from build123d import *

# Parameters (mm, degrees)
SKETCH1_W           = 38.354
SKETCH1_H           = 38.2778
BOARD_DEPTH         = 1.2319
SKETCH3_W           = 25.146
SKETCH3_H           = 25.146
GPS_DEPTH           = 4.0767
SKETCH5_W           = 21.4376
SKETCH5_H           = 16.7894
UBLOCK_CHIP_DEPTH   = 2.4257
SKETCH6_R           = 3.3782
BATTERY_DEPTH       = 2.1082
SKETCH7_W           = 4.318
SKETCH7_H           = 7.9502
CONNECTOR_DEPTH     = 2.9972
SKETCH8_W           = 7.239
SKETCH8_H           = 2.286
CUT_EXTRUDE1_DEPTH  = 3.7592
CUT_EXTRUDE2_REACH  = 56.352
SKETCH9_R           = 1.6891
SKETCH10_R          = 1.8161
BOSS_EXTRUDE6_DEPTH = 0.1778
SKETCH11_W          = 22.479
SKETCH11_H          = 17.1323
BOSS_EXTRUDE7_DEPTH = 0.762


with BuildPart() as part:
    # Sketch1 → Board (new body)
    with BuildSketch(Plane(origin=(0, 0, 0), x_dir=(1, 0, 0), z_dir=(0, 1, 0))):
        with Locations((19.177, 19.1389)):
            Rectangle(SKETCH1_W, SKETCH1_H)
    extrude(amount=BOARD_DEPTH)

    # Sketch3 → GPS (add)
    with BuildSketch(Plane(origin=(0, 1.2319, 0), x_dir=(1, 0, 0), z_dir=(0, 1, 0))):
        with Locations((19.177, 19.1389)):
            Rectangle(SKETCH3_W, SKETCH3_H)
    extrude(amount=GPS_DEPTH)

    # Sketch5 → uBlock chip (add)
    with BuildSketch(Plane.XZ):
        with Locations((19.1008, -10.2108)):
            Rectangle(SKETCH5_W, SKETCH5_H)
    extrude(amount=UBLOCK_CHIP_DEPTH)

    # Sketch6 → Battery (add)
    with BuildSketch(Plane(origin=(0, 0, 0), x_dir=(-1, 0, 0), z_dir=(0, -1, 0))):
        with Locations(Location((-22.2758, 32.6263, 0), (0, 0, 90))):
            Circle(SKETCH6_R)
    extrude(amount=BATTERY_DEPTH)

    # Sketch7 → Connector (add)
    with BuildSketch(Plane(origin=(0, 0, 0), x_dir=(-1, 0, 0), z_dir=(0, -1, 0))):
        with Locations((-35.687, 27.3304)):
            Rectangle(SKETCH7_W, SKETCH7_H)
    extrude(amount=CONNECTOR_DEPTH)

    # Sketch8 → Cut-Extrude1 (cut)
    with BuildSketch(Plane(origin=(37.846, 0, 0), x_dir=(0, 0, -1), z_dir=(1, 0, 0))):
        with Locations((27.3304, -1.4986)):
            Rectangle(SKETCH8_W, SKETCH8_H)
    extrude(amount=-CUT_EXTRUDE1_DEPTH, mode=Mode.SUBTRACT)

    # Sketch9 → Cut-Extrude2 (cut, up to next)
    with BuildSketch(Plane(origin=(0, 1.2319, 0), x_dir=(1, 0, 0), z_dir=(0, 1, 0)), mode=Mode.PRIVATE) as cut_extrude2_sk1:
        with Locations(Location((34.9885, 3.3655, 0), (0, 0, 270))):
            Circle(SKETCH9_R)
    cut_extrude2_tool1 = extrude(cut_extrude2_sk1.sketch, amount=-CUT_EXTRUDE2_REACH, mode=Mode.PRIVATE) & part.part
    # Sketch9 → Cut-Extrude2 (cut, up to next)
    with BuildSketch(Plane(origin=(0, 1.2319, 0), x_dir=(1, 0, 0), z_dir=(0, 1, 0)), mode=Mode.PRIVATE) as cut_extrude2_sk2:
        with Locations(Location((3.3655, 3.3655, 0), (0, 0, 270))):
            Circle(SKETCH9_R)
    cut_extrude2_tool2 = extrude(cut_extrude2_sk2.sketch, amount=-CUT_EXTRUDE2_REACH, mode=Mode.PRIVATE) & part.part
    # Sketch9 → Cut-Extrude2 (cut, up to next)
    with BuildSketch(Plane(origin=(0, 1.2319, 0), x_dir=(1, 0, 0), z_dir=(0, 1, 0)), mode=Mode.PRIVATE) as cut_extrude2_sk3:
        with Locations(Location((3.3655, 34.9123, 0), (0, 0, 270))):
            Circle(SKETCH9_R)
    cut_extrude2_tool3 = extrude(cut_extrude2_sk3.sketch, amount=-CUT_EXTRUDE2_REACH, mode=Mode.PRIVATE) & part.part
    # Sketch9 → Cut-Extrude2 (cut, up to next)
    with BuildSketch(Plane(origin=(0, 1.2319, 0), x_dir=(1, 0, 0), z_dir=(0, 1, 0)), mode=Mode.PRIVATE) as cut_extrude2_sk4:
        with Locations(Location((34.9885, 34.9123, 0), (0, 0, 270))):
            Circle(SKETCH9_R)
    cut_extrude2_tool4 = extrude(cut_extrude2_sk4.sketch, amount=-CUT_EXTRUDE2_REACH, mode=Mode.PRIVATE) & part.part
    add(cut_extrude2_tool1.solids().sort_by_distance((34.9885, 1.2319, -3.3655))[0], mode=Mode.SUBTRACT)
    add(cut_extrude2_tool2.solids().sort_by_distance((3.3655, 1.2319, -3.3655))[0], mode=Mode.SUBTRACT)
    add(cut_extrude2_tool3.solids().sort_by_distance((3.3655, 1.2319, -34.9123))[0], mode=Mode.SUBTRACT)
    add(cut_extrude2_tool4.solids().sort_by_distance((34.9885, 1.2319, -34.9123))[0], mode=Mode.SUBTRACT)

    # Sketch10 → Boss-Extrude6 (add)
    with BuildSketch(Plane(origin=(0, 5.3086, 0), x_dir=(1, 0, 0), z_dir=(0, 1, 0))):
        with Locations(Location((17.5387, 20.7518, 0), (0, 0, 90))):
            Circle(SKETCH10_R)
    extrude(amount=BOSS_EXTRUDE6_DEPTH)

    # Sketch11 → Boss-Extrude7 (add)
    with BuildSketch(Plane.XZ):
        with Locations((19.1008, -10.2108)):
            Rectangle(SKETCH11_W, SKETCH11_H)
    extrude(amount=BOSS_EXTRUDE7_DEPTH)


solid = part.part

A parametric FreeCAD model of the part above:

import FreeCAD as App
import Part
import Sketcher
from FreeCAD import Vector
Q = App.Units.Quantity

doc = App.newDocument("Part")
body = doc.addObject("PartDesign::Body", "Body")

# Sketch on XZ plane
sketch1 = body.newObject("Sketcher::SketchObject", "Sketch")
sketch1.AttachmentSupport = (doc.getObject("XZ_Plane"), [""])
sketch1.MapMode = "FlatFace"
sketch1.addGeometry([
    Part.LineSegment(Vector(0, -38.2778, 0), Vector(0, 0, 0)),
    Part.LineSegment(Vector(0, 0, 0), Vector(38.354, 0, 0)),
    Part.LineSegment(Vector(38.354, 0, 0), Vector(38.354, -38.2778, 0)),
    Part.LineSegment(Vector(38.354, -38.2778, 0), Vector(0, -38.2778, 0)),
], False)
sketch1.addConstraint([
    Sketcher.Constraint("Coincident", 0, 2, 1, 1),
    Sketcher.Constraint("Coincident", 1, 2, 2, 1),
    Sketcher.Constraint("Coincident", 2, 2, 3, 1),
    Sketcher.Constraint("Coincident", 3, 2, 0, 1),
    Sketcher.Constraint("Vertical", 0),
    Sketcher.Constraint("Horizontal", 1),
    Sketcher.Constraint("Vertical", 2),
    Sketcher.Constraint("Horizontal", 3),
    Sketcher.Constraint("Coincident", 0, 2, -1, 1),
    Sketcher.Constraint("DistanceX", 1, 1, 1, 2, Q("1.51 in")),
    Sketcher.Constraint("DistanceY", 0, 1, 0, 2, Q("1.507 in")),
])
pad1 = body.newObject("PartDesign::Pad", "Pad")
pad1.Profile = sketch1
pad1.Length = Q("0.0485 in")
pad1.Reversed = True

# Sketch on XZ plane
sketch2 = body.newObject("Sketcher::SketchObject", "Sketch001")
sketch2.AttachmentSupport = (doc.getObject("XZ_Plane"), [""])
sketch2.MapMode = "FlatFace"
sketch2.AttachmentOffset = App.Placement(Vector(0, 0, -0.0485 * 25.4), App.Rotation())
sketch2.addGeometry([
    Part.LineSegment(Vector(6.604, -31.7119, 0), Vector(6.604, -6.5659, 0)),
    Part.LineSegment(Vector(6.604, -6.5659, 0), Vector(31.75, -6.5659, 0)),
    Part.LineSegment(Vector(31.75, -6.5659, 0), Vector(31.75, -31.7119, 0)),
    Part.LineSegment(Vector(31.75, -31.7119, 0), Vector(6.604, -31.7119, 0)),
], False)
sketch2.addConstraint([
    Sketcher.Constraint("Coincident", 0, 2, 1, 1),
    Sketcher.Constraint("Coincident", 1, 2, 2, 1),
    Sketcher.Constraint("Coincident", 2, 2, 3, 1),
    Sketcher.Constraint("Coincident", 3, 2, 0, 1),
    Sketcher.Constraint("Vertical", 0),
    Sketcher.Constraint("Horizontal", 1),
    Sketcher.Constraint("Vertical", 2),
    Sketcher.Constraint("Horizontal", 3),
    Sketcher.Constraint("Equal", 3, 0),
    Sketcher.Constraint("DistanceX", 1, 1, 1, 2, Q("0.99 in")),
    Sketcher.Constraint("DistanceX", -1, 1, 0, 2, Q("0.26 in")),
    Sketcher.Constraint("DistanceY", 0, 2, -1, 1, Q("0.2585 in")),
])
pad2 = body.newObject("PartDesign::Pad", "Pad001")
pad2.Profile = sketch2
pad2.Length = Q("0.1605 in")
pad2.Reversed = True

# Sketch on XZ plane
sketch3 = body.newObject("Sketcher::SketchObject", "Sketch002")
sketch3.AttachmentSupport = (doc.getObject("XZ_Plane"), [""])
sketch3.MapMode = "FlatFace"
sketch3.addGeometry([
    Part.LineSegment(Vector(8.382, -1.8161, 0), Vector(8.382, -18.6055, 0)),
    Part.LineSegment(Vector(8.382, -18.6055, 0), Vector(29.8196, -18.6055, 0)),
    Part.LineSegment(Vector(29.8196, -18.6055, 0), Vector(29.8196, -1.8161, 0)),
    Part.LineSegment(Vector(29.8196, -1.8161, 0), Vector(8.382, -1.8161, 0)),
], False)
sketch3.addConstraint([
    Sketcher.Constraint("Coincident", 0, 2, 1, 1),
    Sketcher.Constraint("Coincident", 1, 2, 2, 1),
    Sketcher.Constraint("Coincident", 2, 2, 3, 1),
    Sketcher.Constraint("Coincident", 3, 2, 0, 1),
    Sketcher.Constraint("Vertical", 0),
    Sketcher.Constraint("Horizontal", 1),
    Sketcher.Constraint("Vertical", 2),
    Sketcher.Constraint("Horizontal", 3),
    Sketcher.Constraint("DistanceX", 1, 1, 1, 2, Q("0.844 in")),
    Sketcher.Constraint("DistanceY", 0, 2, 0, 1, Q("0.661 in")),
    Sketcher.Constraint("DistanceX", -1, 1, 0, 2, Q("0.33 in")),
    Sketcher.Constraint("DistanceY", 0, 2, -1, 1, Q("0.7325 in")),
])
pad3 = body.newObject("PartDesign::Pad", "Pad002")
pad3.Profile = sketch3
pad3.Length = Q("0.0955 in")

# Sketch on XZ plane
sketch4 = body.newObject("Sketcher::SketchObject", "Sketch003")
sketch4.AttachmentSupport = (doc.getObject("XZ_Plane"), [""])
sketch4.MapMode = "FlatFace"
sketch4.addGeometry(Part.Circle(Vector(22.2758, -32.6263, 0), Vector(0, 0, 1), 3.3782), False)
sketch4.addConstraint([
    Sketcher.Constraint("Diameter", 0, Q("0.266 in")),
    Sketcher.Constraint("DistanceX", -1, 1, 0, 3, Q("0.877 in")),
    Sketcher.Constraint("DistanceY", 0, 3, -1, 1, Q("1.2845 in")),
])
pad4 = body.newObject("PartDesign::Pad", "Pad003")
pad4.Profile = sketch4
pad4.Length = Q("0.083 in")

# Sketch on XZ plane
sketch5 = body.newObject("Sketcher::SketchObject", "Sketch004")
sketch5.AttachmentSupport = (doc.getObject("XZ_Plane"), [""])
sketch5.MapMode = "FlatFace"
sketch5.addGeometry([
    Part.LineSegment(Vector(37.846, -31.3055, 0), Vector(37.846, -23.3553, 0)),
    Part.LineSegment(Vector(37.846, -23.3553, 0), Vector(33.528, -23.3553, 0)),
    Part.LineSegment(Vector(33.528, -23.3553, 0), Vector(33.528, -31.3055, 0)),
    Part.LineSegment(Vector(33.528, -31.3055, 0), Vector(37.846, -31.3055, 0)),
], False)
sketch5.addConstraint([
    Sketcher.Constraint("Coincident", 0, 2, 1, 1),
    Sketcher.Constraint("Coincident", 1, 2, 2, 1),
    Sketcher.Constraint("Coincident", 2, 2, 3, 1),
    Sketcher.Constraint("Coincident", 3, 2, 0, 1),
    Sketcher.Constraint("Vertical", 0),
    Sketcher.Constraint("Horizontal", 1),
    Sketcher.Constraint("Vertical", 2),
    Sketcher.Constraint("Horizontal", 3),
    Sketcher.Constraint("DistanceX", 1, 2, 1, 1, Q("0.17 in")),
    Sketcher.Constraint("DistanceY", 0, 1, 0, 2, Q("0.313 in")),
    Sketcher.Constraint("DistanceX", -1, 1, 0, 2, Q("1.49 in")),
    Sketcher.Constraint("DistanceY", 0, 2, -1, 1, Q("0.9195 in")),
])
pad5 = body.newObject("PartDesign::Pad", "Pad004")
pad5.Profile = sketch5
pad5.Length = Q("0.118 in")

# Sketch on YZ plane
sketch6 = body.newObject("Sketcher::SketchObject", "Sketch005")
sketch6.AttachmentSupport = (doc.getObject("YZ_Plane"), [""])
sketch6.MapMode = "FlatFace"
sketch6.AttachmentOffset = App.Placement(Vector(0, 0, 1.49 * 25.4), App.Rotation())
sketch6.addGeometry([
    Part.LineSegment(Vector(-0.3556, -23.7109, 0), Vector(-2.6416, -23.7109, 0)),
    Part.LineSegment(Vector(-2.6416, -23.7109, 0), Vector(-2.6416, -30.9499, 0)),
    Part.LineSegment(Vector(-2.6416, -30.9499, 0), Vector(-0.3556, -30.9499, 0)),
    Part.LineSegment(Vector(-0.3556, -30.9499, 0), Vector(-0.3556, -23.7109, 0)),
], False)
sketch6.addConstraint([
    Sketcher.Constraint("Coincident", 0, 2, 1, 1),
    Sketcher.Constraint("Coincident", 1, 2, 2, 1),
    Sketcher.Constraint("Coincident", 2, 2, 3, 1),
    Sketcher.Constraint("Coincident", 3, 2, 0, 1),
    Sketcher.Constraint("Horizontal", 0),
    Sketcher.Constraint("Vertical", 1),
    Sketcher.Constraint("Horizontal", 2),
    Sketcher.Constraint("Vertical", 3),
    Sketcher.Constraint("DistanceX", 0, 2, 0, 1, Q("0.09 in")),
    Sketcher.Constraint("DistanceY", 1, 2, 1, 1, Q("0.285 in")),
    Sketcher.Constraint("DistanceX", 0, 2, -1, 1, Q("0.104 in")),
    Sketcher.Constraint("DistanceY", 0, 2, -1, 1, Q("0.9335 in")),
])
pocket1 = body.newObject("PartDesign::Pocket", "Pocket")
pocket1.Profile = sketch6
pocket1.Length = Q("0.148 in")

# Sketch on XZ plane
sketch7 = body.newObject("Sketcher::SketchObject", "Sketch006")
sketch7.AttachmentSupport = (doc.getObject("XZ_Plane"), [""])
sketch7.MapMode = "FlatFace"
sketch7.AttachmentOffset = App.Placement(Vector(0, 0, -0.0485 * 25.4), App.Rotation())
sketch7.addGeometry(Part.Circle(Vector(34.9885, -3.3655, 0), Vector(0, 0, 1), 1.6891), False)
sketch7.addConstraint([
    Sketcher.Constraint("Diameter", 0, Q("0.133 in")),
    Sketcher.Constraint("DistanceX", -1, 1, 0, 3, Q("1.3775 in")),
    Sketcher.Constraint("DistanceY", 0, 3, -1, 1, Q("0.1325 in")),
])
pocket2 = body.newObject("PartDesign::Pocket", "Pocket001")
pocket2.Profile = sketch7
pocket2.Type = "UpToFirst"
pocket2.Reversed = True

# Sketch on XZ plane
sketch8 = body.newObject("Sketcher::SketchObject", "Sketch007")
sketch8.AttachmentSupport = (doc.getObject("XZ_Plane"), [""])
sketch8.MapMode = "FlatFace"
sketch8.AttachmentOffset = App.Placement(Vector(0, 0, -0.0485 * 25.4), App.Rotation())
sketch8.addGeometry(Part.Circle(Vector(3.3655, -3.3655, 0), Vector(0, 0, 1), 1.6891), False)
sketch8.addConstraint([
    Sketcher.Constraint("Diameter", 0, Q("0.133 in")),
    Sketcher.Constraint("DistanceX", -1, 1, 0, 3, Q("0.1325 in")),
    Sketcher.Constraint("DistanceY", 0, 3, -1, 1, Q("0.1325 in")),
])
pocket3 = body.newObject("PartDesign::Pocket", "Pocket002")
pocket3.Profile = sketch8
pocket3.Type = "UpToFirst"
pocket3.Reversed = True

# Sketch on XZ plane
sketch9 = body.newObject("Sketcher::SketchObject", "Sketch008")
sketch9.AttachmentSupport = (doc.getObject("XZ_Plane"), [""])
sketch9.MapMode = "FlatFace"
sketch9.AttachmentOffset = App.Placement(Vector(0, 0, -0.0485 * 25.4), App.Rotation())
sketch9.addGeometry(Part.Circle(Vector(3.3655, -34.9123, 0), Vector(0, 0, 1), 1.6891), False)
sketch9.addConstraint([
    Sketcher.Constraint("Diameter", 0, Q("0.133 in")),
    Sketcher.Constraint("DistanceX", -1, 1, 0, 3, Q("0.1325 in")),
    Sketcher.Constraint("DistanceY", 0, 3, -1, 1, Q("1.3745 in")),
])
pocket4 = body.newObject("PartDesign::Pocket", "Pocket003")
pocket4.Profile = sketch9
pocket4.Type = "UpToFirst"
pocket4.Reversed = True

# Sketch on XZ plane
sketch10 = body.newObject("Sketcher::SketchObject", "Sketch009")
sketch10.AttachmentSupport = (doc.getObject("XZ_Plane"), [""])
sketch10.MapMode = "FlatFace"
sketch10.AttachmentOffset = App.Placement(Vector(0, 0, -0.0485 * 25.4), App.Rotation())
sketch10.addGeometry(Part.Circle(Vector(34.9885, -34.9123, 0), Vector(0, 0, 1), 1.6891), False)
sketch10.addConstraint([
    Sketcher.Constraint("Diameter", 0, Q("0.133 in")),
    Sketcher.Constraint("DistanceX", -1, 1, 0, 3, Q("1.3775 in")),
    Sketcher.Constraint("DistanceY", 0, 3, -1, 1, Q("1.3745 in")),
])
pocket5 = body.newObject("PartDesign::Pocket", "Pocket004")
pocket5.Profile = sketch10
pocket5.Type = "UpToFirst"
pocket5.Reversed = True

# Sketch on XZ plane
sketch11 = body.newObject("Sketcher::SketchObject", "Sketch010")
sketch11.AttachmentSupport = (doc.getObject("XZ_Plane"), [""])
sketch11.MapMode = "FlatFace"
sketch11.AttachmentOffset = App.Placement(Vector(0, 0, -0.209 * 25.4), App.Rotation())
sketch11.addGeometry(Part.Circle(Vector(17.5387, -20.7518, 0), Vector(0, 0, 1), 1.8161), False)
sketch11.addConstraint([
    Sketcher.Constraint("Diameter", 0, Q("0.143 in")),
    Sketcher.Constraint("DistanceY", 0, 3, -1, 1, Q("0.817 in")),
    Sketcher.Constraint("DistanceX", -1, 1, 0, 3, Q("0.6905 in")),
])
pad6 = body.newObject("PartDesign::Pad", "Pad005")
pad6.Profile = sketch11
pad6.Length = Q("0.007 in")
pad6.Reversed = True

# Sketch on XZ plane
sketch12 = body.newObject("Sketcher::SketchObject", "Sketch011")
sketch12.AttachmentSupport = (doc.getObject("XZ_Plane"), [""])
sketch12.MapMode = "FlatFace"
sketch12.addGeometry([
    Part.LineSegment(Vector(7.8613, -1.64465, 0), Vector(7.8613, -18.77695, 0)),
    Part.LineSegment(Vector(7.8613, -18.77695, 0), Vector(30.3403, -18.77695, 0)),
    Part.LineSegment(Vector(30.3403, -18.77695, 0), Vector(30.3403, -1.64465, 0)),
    Part.LineSegment(Vector(30.3403, -1.64465, 0), Vector(7.8613, -1.64465, 0)),
], False)
sketch12.addConstraint([
    Sketcher.Constraint("Coincident", 0, 2, 1, 1),
    Sketcher.Constraint("Coincident", 1, 2, 2, 1),
    Sketcher.Constraint("Coincident", 2, 2, 3, 1),
    Sketcher.Constraint("Coincident", 3, 2, 0, 1),
    Sketcher.Constraint("Vertical", 0),
    Sketcher.Constraint("Horizontal", 1),
    Sketcher.Constraint("Vertical", 2),
    Sketcher.Constraint("Horizontal", 3),
    Sketcher.Constraint("DistanceX", 1, 1, 1, 2, Q("0.885 in")),
    Sketcher.Constraint("DistanceY", 0, 2, 0, 1, Q("0.6745 in")),
    Sketcher.Constraint("DistanceX", -1, 1, 0, 2, Q("0.3095 in")),
    Sketcher.Constraint("DistanceY", 0, 2, -1, 1, Q("18.77695 mm")),
])
pad7 = body.newObject("PartDesign::Pad", "Pad006")
pad7.Profile = sketch12
pad7.Length = Q("0.03 in")

doc.recompute()
